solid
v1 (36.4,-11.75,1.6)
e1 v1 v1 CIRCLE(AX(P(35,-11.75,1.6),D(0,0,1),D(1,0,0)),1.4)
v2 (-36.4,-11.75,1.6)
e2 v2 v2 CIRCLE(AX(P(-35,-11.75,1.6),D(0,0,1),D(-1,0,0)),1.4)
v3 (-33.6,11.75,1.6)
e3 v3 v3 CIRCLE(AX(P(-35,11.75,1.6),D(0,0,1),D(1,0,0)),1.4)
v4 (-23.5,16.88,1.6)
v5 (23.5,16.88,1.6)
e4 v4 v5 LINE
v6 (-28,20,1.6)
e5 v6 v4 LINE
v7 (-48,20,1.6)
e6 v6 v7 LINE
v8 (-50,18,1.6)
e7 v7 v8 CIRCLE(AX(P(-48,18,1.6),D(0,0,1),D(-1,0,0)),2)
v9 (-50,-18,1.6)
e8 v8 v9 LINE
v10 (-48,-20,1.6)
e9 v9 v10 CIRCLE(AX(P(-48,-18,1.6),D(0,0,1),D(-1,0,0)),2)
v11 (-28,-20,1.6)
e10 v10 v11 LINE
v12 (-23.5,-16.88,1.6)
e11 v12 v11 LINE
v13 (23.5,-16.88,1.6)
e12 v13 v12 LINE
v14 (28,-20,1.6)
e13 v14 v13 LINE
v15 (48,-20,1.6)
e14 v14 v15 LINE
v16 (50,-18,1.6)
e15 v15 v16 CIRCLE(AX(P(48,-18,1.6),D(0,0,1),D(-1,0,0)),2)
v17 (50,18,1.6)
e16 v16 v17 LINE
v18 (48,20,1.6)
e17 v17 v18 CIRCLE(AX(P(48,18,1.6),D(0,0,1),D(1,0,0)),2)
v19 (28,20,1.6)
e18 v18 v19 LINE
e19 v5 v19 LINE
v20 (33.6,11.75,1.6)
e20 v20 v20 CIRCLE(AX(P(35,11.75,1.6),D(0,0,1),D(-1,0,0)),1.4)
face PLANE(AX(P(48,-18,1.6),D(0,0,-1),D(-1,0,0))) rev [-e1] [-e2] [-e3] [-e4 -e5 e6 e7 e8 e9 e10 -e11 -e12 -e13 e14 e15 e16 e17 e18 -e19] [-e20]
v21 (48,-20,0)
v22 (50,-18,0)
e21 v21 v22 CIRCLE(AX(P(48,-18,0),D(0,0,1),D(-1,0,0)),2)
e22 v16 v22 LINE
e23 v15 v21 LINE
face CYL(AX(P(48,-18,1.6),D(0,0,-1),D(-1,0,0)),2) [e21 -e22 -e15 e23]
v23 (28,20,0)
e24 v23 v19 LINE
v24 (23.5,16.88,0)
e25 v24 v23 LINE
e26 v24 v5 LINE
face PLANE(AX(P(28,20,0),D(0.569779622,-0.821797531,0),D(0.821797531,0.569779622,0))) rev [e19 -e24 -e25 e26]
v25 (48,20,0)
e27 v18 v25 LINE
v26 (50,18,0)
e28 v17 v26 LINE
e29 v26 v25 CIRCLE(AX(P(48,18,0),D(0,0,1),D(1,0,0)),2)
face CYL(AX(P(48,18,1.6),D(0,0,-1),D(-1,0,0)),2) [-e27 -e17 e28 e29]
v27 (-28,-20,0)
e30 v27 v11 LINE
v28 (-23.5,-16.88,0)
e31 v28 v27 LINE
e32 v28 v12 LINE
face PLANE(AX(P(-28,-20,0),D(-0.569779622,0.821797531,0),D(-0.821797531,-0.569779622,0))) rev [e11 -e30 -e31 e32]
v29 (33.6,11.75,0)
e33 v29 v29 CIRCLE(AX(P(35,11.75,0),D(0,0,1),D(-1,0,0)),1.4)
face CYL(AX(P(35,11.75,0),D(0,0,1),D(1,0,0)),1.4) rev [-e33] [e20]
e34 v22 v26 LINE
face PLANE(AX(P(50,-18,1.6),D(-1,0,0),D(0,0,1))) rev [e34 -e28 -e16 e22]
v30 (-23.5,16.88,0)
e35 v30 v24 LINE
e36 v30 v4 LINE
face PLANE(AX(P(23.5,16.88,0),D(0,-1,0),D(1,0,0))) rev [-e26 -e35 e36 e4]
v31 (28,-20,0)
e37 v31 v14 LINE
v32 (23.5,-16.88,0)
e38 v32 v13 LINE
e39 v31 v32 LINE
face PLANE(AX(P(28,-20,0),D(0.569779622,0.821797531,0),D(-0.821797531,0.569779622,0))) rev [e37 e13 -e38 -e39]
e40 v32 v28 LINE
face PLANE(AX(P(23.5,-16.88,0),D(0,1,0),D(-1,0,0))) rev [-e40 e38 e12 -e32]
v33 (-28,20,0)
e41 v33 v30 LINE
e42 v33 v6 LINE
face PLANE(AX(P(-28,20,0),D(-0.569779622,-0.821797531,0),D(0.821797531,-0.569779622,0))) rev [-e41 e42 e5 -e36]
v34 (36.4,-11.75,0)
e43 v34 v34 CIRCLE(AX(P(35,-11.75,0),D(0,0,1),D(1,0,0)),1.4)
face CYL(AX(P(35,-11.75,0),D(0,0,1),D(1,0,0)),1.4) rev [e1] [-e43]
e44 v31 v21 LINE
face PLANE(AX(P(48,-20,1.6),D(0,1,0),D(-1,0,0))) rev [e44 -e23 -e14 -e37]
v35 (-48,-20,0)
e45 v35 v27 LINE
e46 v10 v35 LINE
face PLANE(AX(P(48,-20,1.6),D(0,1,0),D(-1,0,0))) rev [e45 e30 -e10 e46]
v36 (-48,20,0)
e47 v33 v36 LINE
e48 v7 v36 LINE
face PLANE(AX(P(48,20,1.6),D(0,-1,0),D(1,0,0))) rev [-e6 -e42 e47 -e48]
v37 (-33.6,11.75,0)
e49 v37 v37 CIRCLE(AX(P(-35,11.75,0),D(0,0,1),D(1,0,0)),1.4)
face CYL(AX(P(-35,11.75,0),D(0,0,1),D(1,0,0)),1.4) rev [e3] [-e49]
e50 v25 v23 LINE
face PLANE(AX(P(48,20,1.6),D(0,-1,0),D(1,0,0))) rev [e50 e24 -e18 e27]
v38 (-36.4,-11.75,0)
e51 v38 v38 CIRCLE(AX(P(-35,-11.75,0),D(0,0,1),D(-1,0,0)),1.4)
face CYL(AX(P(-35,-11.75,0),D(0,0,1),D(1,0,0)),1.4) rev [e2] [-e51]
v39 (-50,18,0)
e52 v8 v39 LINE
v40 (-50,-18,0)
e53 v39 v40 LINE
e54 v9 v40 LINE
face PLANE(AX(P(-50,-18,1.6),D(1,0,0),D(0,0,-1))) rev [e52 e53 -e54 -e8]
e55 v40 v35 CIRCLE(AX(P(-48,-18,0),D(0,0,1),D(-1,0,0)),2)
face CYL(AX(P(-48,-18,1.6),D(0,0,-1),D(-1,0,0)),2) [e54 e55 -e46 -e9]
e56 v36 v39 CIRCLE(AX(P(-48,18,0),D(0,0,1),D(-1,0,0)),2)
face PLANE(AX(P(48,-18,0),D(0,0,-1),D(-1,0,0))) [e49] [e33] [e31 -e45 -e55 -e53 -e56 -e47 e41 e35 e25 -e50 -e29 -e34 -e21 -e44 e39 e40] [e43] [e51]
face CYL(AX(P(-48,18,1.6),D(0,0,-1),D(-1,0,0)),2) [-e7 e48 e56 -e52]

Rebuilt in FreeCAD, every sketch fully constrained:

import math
import FreeCAD as App
import Part
import Sketcher

V = App.Vector

doc = App.newDocument("Part")
body = doc.addObject("PartDesign::Body", "Body")

sketch1 = body.newObject("Sketcher::SketchObject", "Sketch")
sketch1.AttachmentSupport = (doc.getObject("XY_Plane"), [""])
sketch1.MapMode = "FlatFace"
sketch1.addGeometry([
    Part.LineSegment(V(-48, -20, 0), V(48, -20, 0)),
    Part.ArcOfCircle(Part.Circle(V(48, -18, 0), V(0, 0, 1), 2), math.radians(-90), math.radians(0)),
    Part.LineSegment(V(50, -18, 0), V(50, 18, 0)),
    Part.ArcOfCircle(Part.Circle(V(48, 18, 0), V(0, 0, 1), 2), math.radians(0), math.radians(90)),
    Part.LineSegment(V(48, 20, 0), V(-48, 20, 0)),
    Part.ArcOfCircle(Part.Circle(V(-48, 18, 0), V(0, 0, 1), 2), math.radians(90), math.radians(180)),
    Part.LineSegment(V(-50, 18, 0), V(-50, -18, 0)),
    Part.ArcOfCircle(Part.Circle(V(-48, -18, 0), V(0, 0, 1), 2), math.radians(-180), math.radians(-90)),
], False)
sketch1.addConstraint([
    Sketcher.Constraint("Tangent", 0, 2, 1, 1),
    Sketcher.Constraint("Tangent", 1, 2, 2, 1),
    Sketcher.Constraint("Tangent", 2, 2, 3, 1),
    Sketcher.Constraint("Tangent", 3, 2, 4, 1),
    Sketcher.Constraint("Tangent", 4, 2, 5, 1),
    Sketcher.Constraint("Tangent", 5, 2, 6, 1),
    Sketcher.Constraint("Tangent", 6, 2, 7, 1),
    Sketcher.Constraint("Tangent", 7, 2, 0, 1),
    Sketcher.Constraint("Horizontal", 0),
    Sketcher.Constraint("Vertical", 2),
    Sketcher.Constraint("Horizontal", 4),
    Sketcher.Constraint("Vertical", 6),
    Sketcher.Constraint("Equal", 1, 3),
    Sketcher.Constraint("Equal", 3, 5),
    Sketcher.Constraint("Equal", 5, 7),
    Sketcher.Constraint("Symmetric", 1, 3, 5, 3, -1, 1),
    Sketcher.Constraint("Radius", 1, 2.0),
    Sketcher.Constraint("DistanceX", 0, 1, 0, 2, 96.0),
    Sketcher.Constraint("DistanceY", 2, 1, 2, 2, 36.0),
])
pad1 = body.newObject("PartDesign::Pad", "Pad")
pad1.Profile = sketch1
pad1.Length = 1.6

sketch2 = body.newObject("Sketcher::SketchObject", "Sketch001")
sketch2.AttachmentSupport = (doc.getObject("XY_Plane"), [""])
sketch2.MapMode = "FlatFace"
sketch2.AttachmentOffset = App.Placement(V(0, 0, 1.6), App.Rotation())
sketch2.addGeometry([
    Part.Circle(V(-35, 11.8, 0), V(0, 0, 1), 1.4),
    Part.Circle(V(-35, -11.8, 0), V(0, 0, 1), 1.4),
    Part.Circle(V(35, -11.8, 0), V(0, 0, 1), 1.4),
    Part.Circle(V(35, 11.8, 0), V(0, 0, 1), 1.4),
    Part.LineSegment(V(-23.5, 16.9, 0), V(23.5, 16.9, 0)),
    Part.LineSegment(V(23.5, 16.9, 0), V(28, 20, 0)),
    Part.LineSegment(V(28, 20, 0), V(-28, 20, 0)),
    Part.LineSegment(V(-28, 20, 0), V(-23.5, 16.9, 0)),
    Part.LineSegment(V(28, -20, 0), V(23.5, -16.9, 0)),
    Part.LineSegment(V(23.5, -16.9, 0), V(-23.5, -16.9, 0)),
    Part.LineSegment(V(-23.5, -16.9, 0), V(-28, -20, 0)),
    Part.LineSegment(V(-28, -20, 0), V(28, -20, 0)),
], False)
sketch2.addConstraint([
    Sketcher.Constraint("Coincident", 4, 2, 5, 1),
    Sketcher.Constraint("Coincident", 5, 2, 6, 1),
    Sketcher.Constraint("Coincident", 6, 2, 7, 1),
    Sketcher.Constraint("Coincident", 7, 2, 4, 1),
    Sketcher.Constraint("Coincident", 8, 2, 9, 1),
    Sketcher.Constraint("Coincident", 9, 2, 10, 1),
    Sketcher.Constraint("Coincident", 10, 2, 11, 1),
    Sketcher.Constraint("Coincident", 11, 2, 8, 1),
    Sketcher.Constraint("Horizontal", 4),
    Sketcher.Constraint("Horizontal", 6),
    Sketcher.Constraint("Horizontal", 9),
    Sketcher.Constraint("Horizontal", 11),
    Sketcher.Constraint("Equal", 0, 1),
    Sketcher.Constraint("Equal", 1, 2),
    Sketcher.Constraint("Equal", 2, 3),
    Sketcher.Constraint("Symmetric", 0, 3, 2, 3, -1, 1),
    Sketcher.Constraint("Symmetric", 1, 3, 3, 3, -1, 1),
    Sketcher.Constraint("Symmetric", 7, 2, 8, 2, -1, 1),
    Sketcher.Constraint("Symmetric", 5, 2, 10, 2, -1, 1),
    Sketcher.Constraint("Symmetric", 1, 3, 2, 3, -2),
    Sketcher.Constraint("Parallel", 7, 8),
    Sketcher.Constraint("Parallel", 5, 10),
    Sketcher.Constraint("Vertical", 4, 2, 8, 2),
    Sketcher.Constraint("Vertical", 6, 2, 10, 2),
    Sketcher.Constraint("Diameter", 0, 2.8),
    Sketcher.Constraint("DistanceX", 4, 1, 4, 2, 47.0),
    Sketcher.Constraint("DistanceX", 6, 2, 6, 1, 56.0),
    Sketcher.Constraint("DistanceX", 0, 3, -1, 1, 35.0),
    Sketcher.Constraint("DistanceY", -1, 1, 5, 2, 20.0),
    Sketcher.Constraint("DistanceY", 1, 3, 0, 3, 23.5),
    Sketcher.Constraint("DistanceY", -1, 1, 4, 2, 16.88),
])
pocket1 = body.newObject("PartDesign::Pocket", "Pocket")
pocket1.Profile = sketch2
pocket1.Length = 1.6

doc.recompute()
